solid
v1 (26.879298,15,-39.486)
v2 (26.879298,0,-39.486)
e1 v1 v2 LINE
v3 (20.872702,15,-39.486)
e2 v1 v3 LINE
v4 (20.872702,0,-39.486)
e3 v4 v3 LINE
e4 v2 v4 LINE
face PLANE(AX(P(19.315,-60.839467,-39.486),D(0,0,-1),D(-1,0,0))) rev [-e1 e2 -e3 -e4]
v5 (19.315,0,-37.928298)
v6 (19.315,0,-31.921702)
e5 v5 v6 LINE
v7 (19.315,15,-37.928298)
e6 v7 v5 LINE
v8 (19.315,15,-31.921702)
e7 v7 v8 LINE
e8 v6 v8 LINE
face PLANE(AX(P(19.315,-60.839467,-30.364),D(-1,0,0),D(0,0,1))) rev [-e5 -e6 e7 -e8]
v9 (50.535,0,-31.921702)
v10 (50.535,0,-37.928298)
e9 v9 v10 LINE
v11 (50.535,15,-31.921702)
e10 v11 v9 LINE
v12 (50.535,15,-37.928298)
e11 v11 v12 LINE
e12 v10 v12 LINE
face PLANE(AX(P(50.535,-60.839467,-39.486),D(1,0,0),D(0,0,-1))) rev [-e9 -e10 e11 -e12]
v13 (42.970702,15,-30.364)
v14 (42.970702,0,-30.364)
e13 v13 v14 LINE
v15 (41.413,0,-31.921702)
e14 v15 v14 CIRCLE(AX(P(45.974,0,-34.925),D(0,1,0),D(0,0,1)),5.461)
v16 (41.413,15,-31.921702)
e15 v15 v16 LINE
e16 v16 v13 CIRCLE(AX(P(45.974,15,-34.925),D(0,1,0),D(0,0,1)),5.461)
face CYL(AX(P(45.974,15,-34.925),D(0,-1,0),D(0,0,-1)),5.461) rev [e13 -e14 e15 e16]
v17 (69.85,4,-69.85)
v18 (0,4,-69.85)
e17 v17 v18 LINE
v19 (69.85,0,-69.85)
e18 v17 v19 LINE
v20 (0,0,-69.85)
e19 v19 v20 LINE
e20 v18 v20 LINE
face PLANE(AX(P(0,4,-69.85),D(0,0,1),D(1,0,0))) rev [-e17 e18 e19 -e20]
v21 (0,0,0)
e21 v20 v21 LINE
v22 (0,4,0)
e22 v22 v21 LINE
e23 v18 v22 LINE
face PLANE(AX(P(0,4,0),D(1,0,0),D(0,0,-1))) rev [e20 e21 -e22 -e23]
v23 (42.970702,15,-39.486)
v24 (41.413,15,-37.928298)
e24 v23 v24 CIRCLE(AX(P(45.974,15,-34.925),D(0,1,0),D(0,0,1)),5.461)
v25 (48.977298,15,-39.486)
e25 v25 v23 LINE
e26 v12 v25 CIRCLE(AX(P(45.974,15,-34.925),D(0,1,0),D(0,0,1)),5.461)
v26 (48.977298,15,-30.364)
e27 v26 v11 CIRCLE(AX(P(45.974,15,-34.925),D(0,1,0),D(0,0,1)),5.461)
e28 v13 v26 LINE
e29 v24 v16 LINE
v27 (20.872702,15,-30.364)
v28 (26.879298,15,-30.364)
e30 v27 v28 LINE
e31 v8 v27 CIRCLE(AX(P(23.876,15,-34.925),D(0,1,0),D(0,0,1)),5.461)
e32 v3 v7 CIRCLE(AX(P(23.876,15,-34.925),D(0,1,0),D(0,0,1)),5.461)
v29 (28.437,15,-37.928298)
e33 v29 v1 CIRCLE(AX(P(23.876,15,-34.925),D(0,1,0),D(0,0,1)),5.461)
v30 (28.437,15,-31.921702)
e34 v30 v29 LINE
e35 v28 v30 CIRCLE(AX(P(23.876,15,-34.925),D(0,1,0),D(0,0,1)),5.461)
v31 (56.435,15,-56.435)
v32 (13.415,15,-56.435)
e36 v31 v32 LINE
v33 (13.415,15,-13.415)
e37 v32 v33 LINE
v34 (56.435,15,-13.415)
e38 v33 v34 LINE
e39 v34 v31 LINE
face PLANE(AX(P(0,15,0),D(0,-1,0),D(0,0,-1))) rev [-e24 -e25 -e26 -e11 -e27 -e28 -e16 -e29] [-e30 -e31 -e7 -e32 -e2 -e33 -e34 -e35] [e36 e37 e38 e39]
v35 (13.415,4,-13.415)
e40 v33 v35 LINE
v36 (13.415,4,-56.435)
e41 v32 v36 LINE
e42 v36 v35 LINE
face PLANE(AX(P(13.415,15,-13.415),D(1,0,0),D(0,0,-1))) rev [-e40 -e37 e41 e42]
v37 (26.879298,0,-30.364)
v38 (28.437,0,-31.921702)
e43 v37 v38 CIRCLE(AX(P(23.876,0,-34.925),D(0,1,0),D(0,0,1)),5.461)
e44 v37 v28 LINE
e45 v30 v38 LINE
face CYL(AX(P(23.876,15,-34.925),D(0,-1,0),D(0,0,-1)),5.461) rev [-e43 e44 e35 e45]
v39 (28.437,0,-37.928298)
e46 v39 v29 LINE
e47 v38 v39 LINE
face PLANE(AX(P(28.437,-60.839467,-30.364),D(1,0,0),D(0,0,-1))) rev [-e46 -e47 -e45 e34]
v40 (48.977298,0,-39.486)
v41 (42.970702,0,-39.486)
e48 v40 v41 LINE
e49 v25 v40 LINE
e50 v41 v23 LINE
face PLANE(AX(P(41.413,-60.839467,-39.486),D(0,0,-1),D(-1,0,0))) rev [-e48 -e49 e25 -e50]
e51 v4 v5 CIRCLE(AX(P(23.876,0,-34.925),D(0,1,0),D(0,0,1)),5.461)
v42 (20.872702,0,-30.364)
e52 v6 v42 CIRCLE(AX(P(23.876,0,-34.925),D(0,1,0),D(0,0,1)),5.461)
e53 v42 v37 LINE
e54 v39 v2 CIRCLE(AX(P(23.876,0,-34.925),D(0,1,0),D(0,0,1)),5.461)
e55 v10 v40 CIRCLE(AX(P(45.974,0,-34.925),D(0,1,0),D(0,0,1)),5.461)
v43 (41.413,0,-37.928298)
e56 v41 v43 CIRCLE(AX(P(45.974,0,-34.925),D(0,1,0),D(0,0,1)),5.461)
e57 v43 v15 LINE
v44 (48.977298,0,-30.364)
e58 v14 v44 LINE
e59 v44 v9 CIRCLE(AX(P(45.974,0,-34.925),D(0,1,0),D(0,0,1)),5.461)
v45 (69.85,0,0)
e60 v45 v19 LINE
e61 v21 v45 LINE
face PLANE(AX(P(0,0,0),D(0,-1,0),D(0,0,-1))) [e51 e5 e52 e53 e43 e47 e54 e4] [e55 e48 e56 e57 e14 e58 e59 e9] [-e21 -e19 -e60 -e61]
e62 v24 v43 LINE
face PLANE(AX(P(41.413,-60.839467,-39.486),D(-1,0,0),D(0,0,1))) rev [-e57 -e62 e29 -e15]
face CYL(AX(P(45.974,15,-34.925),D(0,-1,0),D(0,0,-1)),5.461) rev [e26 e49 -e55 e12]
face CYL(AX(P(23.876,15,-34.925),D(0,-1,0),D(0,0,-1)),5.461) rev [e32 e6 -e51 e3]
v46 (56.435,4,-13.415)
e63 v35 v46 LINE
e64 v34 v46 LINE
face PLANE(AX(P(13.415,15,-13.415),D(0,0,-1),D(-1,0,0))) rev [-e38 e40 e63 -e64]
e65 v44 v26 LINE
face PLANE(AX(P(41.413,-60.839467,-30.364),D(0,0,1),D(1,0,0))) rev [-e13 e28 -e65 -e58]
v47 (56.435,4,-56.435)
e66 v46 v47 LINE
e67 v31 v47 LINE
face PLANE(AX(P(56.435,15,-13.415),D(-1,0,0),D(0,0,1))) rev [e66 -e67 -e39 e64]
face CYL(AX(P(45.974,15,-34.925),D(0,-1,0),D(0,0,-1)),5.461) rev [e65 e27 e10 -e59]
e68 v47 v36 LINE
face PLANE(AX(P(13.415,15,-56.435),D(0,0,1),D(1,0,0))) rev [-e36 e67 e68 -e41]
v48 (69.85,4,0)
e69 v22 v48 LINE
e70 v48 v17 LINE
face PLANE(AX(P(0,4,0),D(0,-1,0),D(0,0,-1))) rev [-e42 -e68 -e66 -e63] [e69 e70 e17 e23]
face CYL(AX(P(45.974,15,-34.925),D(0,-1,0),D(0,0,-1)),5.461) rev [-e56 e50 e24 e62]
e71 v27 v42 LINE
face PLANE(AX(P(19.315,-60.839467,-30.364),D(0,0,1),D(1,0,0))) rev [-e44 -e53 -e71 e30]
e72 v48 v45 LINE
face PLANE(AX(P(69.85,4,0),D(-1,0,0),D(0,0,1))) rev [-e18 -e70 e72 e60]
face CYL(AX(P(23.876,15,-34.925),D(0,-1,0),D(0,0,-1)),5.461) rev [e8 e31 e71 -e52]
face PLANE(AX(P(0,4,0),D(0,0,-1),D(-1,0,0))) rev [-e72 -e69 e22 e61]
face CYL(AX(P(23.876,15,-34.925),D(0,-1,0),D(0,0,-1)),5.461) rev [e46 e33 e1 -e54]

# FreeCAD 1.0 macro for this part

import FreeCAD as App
import Part
import Sketcher
Q = App.Units.Quantity

doc = App.newDocument("Part")
body = doc.addObject("PartDesign::Body", "Body")

sketch1 = body.newObject("Sketcher::SketchObject", "Sketch")
sketch1.AttachmentSupport = (doc.getObject("XZ_Plane"), [""])
sketch1.MapMode = "FlatFace"
sketch1.addGeometry([
    Part.LineSegment(App.Vector(0, -70, 0), App.Vector(0, 0, 0)),
    Part.LineSegment(App.Vector(0, 0, 0), App.Vector(70, 0, 0)),
    Part.LineSegment(App.Vector(70, 0, 0), App.Vector(70, -70, 0)),
    Part.LineSegment(App.Vector(70, -70, 0), App.Vector(0, -70, 0)),
], False)
sketch1.addConstraint([
    Sketcher.Constraint("Coincident", 0, 2, 1, 1),
    Sketcher.Constraint("Coincident", 1, 2, 2, 1),
    Sketcher.Constraint("Coincident", 2, 2, 3, 1),
    Sketcher.Constraint("Coincident", 3, 2, 0, 1),
    Sketcher.Constraint("Vertical", 0),
    Sketcher.Constraint("Horizontal", 1),
    Sketcher.Constraint("Vertical", 2),
    Sketcher.Constraint("Horizontal", 3),
    Sketcher.Constraint("Coincident", 0, 2, -1, 1),
    Sketcher.Constraint("Equal", 3, 0),
    Sketcher.Constraint("DistanceX", 1, 1, 1, 2, Q("69.85 mm")),
])
pad1 = body.newObject("PartDesign::Pad", "Pad")
pad1.Profile = sketch1
pad1.Length = 4
pad1.Reversed = True

sketch2 = body.newObject("Sketcher::SketchObject", "Sketch001")
sketch2.AttachmentSupport = (doc.getObject("XZ_Plane"), [""])
sketch2.MapMode = "FlatFace"
sketch2.AttachmentOffset = App.Placement(App.Vector(0, 0, -4), App.Rotation())
sketch2.addGeometry([
    Part.LineSegment(App.Vector(13, -56, 0), App.Vector(13, -13, 0)),
    Part.LineSegment(App.Vector(13, -13, 0), App.Vector(56, -13, 0)),
    Part.LineSegment(App.Vector(56, -13, 0), App.Vector(56, -56, 0)),
    Part.LineSegment(App.Vector(56, -56, 0), App.Vector(13, -56, 0)),
    Part.Circle(App.Vector(24, -35, 0), App.Vector(0, 0, 1), 5),
    Part.Circle(App.Vector(46, -35, 0), App.Vector(0, 0, 1), 5),
], False)
sketch2.addConstraint([
    Sketcher.Constraint("Coincident", 0, 2, 1, 1),
    Sketcher.Constraint("Coincident", 1, 2, 2, 1),
    Sketcher.Constraint("Coincident", 2, 2, 3, 1),
    Sketcher.Constraint("Coincident", 3, 2, 0, 1),
    Sketcher.Constraint("Vertical", 0),
    Sketcher.Constraint("Horizontal", 1),
    Sketcher.Constraint("Vertical", 2),
    Sketcher.Constraint("Horizontal", 3),
    Sketcher.Constraint("Equal", 4, 5),
    Sketcher.Constraint("Horizontal", 4, 3, 5, 3),
    Sketcher.Constraint("Equal", 3, 0),
    Sketcher.Constraint("Diameter", 4, Q("10.922 mm")),
    Sketcher.Constraint("DistanceX", 1, 1, 1, 2, Q("43.02 mm")),
    Sketcher.Constraint("DistanceY", 4, 3, 0, 2, Q("21.51 mm")),
    Sketcher.Constraint("DistanceX", -1, 1, 4, 3, Q("23.876 mm")),
    Sketcher.Constraint("DistanceY", 4, 3, -1, 1, Q("34.925 mm")),
    Sketcher.Constraint("DistanceX", -1, 1, 5, 3, Q("45.974 mm")),
    Sketcher.Constraint("DistanceX", -1, 1, 0, 2, Q("13.415 mm")),
])
pad2 = body.newObject("PartDesign::Pad", "Pad001")
pad2.Profile = sketch2
pad2.Length = 11
pad2.Reversed = True

sketch3 = body.newObject("Sketcher::SketchObject", "Sketch002")
sketch3.AttachmentSupport = (doc.getObject("XZ_Plane"), [""])
sketch3.MapMode = "FlatFace"
sketch3.AttachmentOffset = App.Placement(App.Vector(0, 0, -15), App.Rotation())
sketch3.addGeometry([
    Part.Circle(App.Vector(24, -35, 0), App.Vector(0, 0, 1), 5),
    Part.Circle(App.Vector(46, -35, 0), App.Vector(0, 0, 1), 5),
], False)
sketch3.addConstraint([
    Sketcher.Constraint("Equal", 0, 1),
    Sketcher.Constraint("Horizontal", 0, 3, 1, 3),
    Sketcher.Constraint("Diameter", 0, Q("10.922 mm")),
    Sketcher.Constraint("DistanceX", -1, 1, 0, 3, Q("23.876 mm")),
    Sketcher.Constraint("DistanceY", 0, 3, -1, 1, Q("34.925 mm")),
    Sketcher.Constraint("DistanceX", -1, 1, 1, 3, Q("45.974 mm")),
])
pocket1 = body.newObject("PartDesign::Pocket", "Pocket")
pocket1.Profile = sketch3
pocket1.Type = "ThroughAll"
pocket1.Midplane = True

sketch4 = body.newObject("Sketcher::SketchObject", "Sketch003")
sketch4.AttachmentSupport = (doc.getObject("XZ_Plane"), [""])
sketch4.MapMode = "FlatFace"
sketch4.AttachmentOffset = App.Placement(App.Vector(0, 0, -15), App.Rotation())
sketch4.addGeometry([
    Part.LineSegment(App.Vector(13, -56, 0), App.Vector(13, -13, 0)),
    Part.LineSegment(App.Vector(13, -13, 0), App.Vector(56, -13, 0)),
    Part.LineSegment(App.Vector(56, -13, 0), App.Vector(56, -56, 0)),
    Part.LineSegment(App.Vector(56, -56, 0), App.Vector(13, -56, 0)),
    Part.LineSegment(App.Vector(28, -30, 0), App.Vector(19, -30, 0)),
    Part.LineSegment(App.Vector(19, -30, 0), App.Vector(19, -39, 0)),
    Part.LineSegment(App.Vector(19, -39, 0), App.Vector(28, -39, 0)),
    Part.LineSegment(App.Vector(28, -39, 0), App.Vector(28, -30, 0)),
    Part.LineSegment(App.Vector(51, -30, 0), App.Vector(41, -30, 0)),
    Part.LineSegment(App.Vector(41, -30, 0), App.Vector(41, -39, 0)),
    Part.LineSegment(App.Vector(41, -39, 0), App.Vector(51, -39, 0)),
    Part.LineSegment(App.Vector(51, -39, 0), App.Vector(51, -30, 0)),
], False)
sketch4.addConstraint([
    Sketcher.Constraint("Coincident", 0, 2, 1, 1),
    Sketcher.Constraint("Coincident", 1, 2, 2, 1),
    Sketcher.Constraint("Coincident", 2, 2, 3, 1),
    Sketcher.Constraint("Coincident", 3, 2, 0, 1),
    Sketcher.Constraint("Coincident", 4, 2, 5, 1),
    Sketcher.Constraint("Coincident", 5, 2, 6, 1),
    Sketcher.Constraint("Coincident", 6, 2, 7, 1),
    Sketcher.Constraint("Coincident", 7, 2, 4, 1),
    Sketcher.Constraint("Coincident", 8, 2, 9, 1),
    Sketcher.Constraint("Coincident", 9, 2, 10, 1),
    Sketcher.Constraint("Coincident", 10, 2, 11, 1),
    Sketcher.Constraint("Coincident", 11, 2, 8, 1),
    Sketcher.Constraint("Vertical", 0),
    Sketcher.Constraint("Horizontal", 1),
    Sketcher.Constraint("Vertical", 2),
    Sketcher.Constraint("Horizontal", 3),
    Sketcher.Constraint("Horizontal", 4),
    Sketcher.Constraint("Vertical", 5),
    Sketcher.Constraint("Horizontal", 6),
    Sketcher.Constraint("Vertical", 7),
    Sketcher.Constraint("Horizontal", 8),
    Sketcher.Constraint("Vertical", 9),
    Sketcher.Constraint("Horizontal", 10),
    Sketcher.Constraint("Vertical", 11),
    Sketcher.Constraint("Horizontal", 7, 2, 8, 2),
    Sketcher.Constraint("Horizontal", 6, 2, 9, 2),
    Sketcher.Constraint("Equal", 6, 8),
    Sketcher.Constraint("Equal", 3, 0),
    Sketcher.Constraint("Equal", 10, 5),
    Sketcher.Constraint("DistanceX", 1, 1, 1, 2, Q("43.02 mm")),
    Sketcher.Constraint("DistanceX", 0, 2, 4, 2, Q("5.9 mm")),
    Sketcher.Constraint("DistanceX", 10, 2, 2, 2, Q("5.9 mm")),
    Sketcher.Constraint("DistanceX", 4, 2, 4, 1, Q("9.122 mm")),
    Sketcher.Constraint("DistanceX", -1, 1, 0, 2, Q("13.415 mm")),
    Sketcher.Constraint("DistanceY", 0, 2, -1, 1, Q("13.415 mm")),
    Sketcher.Constraint("DistanceY", 4, 2, -1, 1, Q("30.364 mm")),
])
pad3 = body.newObject("PartDesign::Pad", "Pad002")
pad3.Profile = sketch4
pad3.Length = 15

doc.recompute()
